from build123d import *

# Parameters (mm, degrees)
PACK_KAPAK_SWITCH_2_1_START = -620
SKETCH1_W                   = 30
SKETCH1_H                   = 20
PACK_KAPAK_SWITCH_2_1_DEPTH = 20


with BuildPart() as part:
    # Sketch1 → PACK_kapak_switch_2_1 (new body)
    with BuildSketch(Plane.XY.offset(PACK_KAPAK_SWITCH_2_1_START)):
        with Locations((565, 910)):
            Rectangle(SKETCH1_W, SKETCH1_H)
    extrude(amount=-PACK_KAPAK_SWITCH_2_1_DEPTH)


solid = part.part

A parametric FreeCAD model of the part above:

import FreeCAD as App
import Part
import Sketcher


def add_polygon(sketch, points):
    """Adds a closed chain of lines whose ends are joined by coincident constraints."""
    first, n = sketch.GeometryCount, len(points)
    for a, b in zip(points, points[1:] + points[:1]):
        sketch.addGeometry(Part.LineSegment(App.Vector(*a, 0), App.Vector(*b, 0)), False)
    for i in range(n):
        sketch.addConstraint(Sketcher.Constraint("Coincident", first + i, 2, first + (i + 1) % n, 1))

doc = App.newDocument("Part")
body = doc.addObject("PartDesign::Body", "Body")

# Sketch on XY plane
sketch1 = body.newObject("Sketcher::SketchObject", "Sketch")
sketch1.AttachmentSupport = (doc.getObject("XY_Plane"), [""])
sketch1.MapMode = "FlatFace"
sketch1.AttachmentOffset = App.Placement(App.Vector(0, 0, -620), App.Rotation())
add_polygon(sketch1, [(550, 920), (550, 900), (580, 900), (580, 920)])  # lines 0-3
sketch1.addConstraint(Sketcher.Constraint("Vertical", 0))
sketch1.addConstraint(Sketcher.Constraint("Horizontal", 1))
sketch1.addConstraint(Sketcher.Constraint("Vertical", 2))
sketch1.addConstraint(Sketcher.Constraint("Horizontal", 3))
sketch1.addConstraint(Sketcher.Constraint("DistanceX", 1, 1, 1, 2, 30.0))
sketch1.addConstraint(Sketcher.Constraint("DistanceY", 0, 2, 0, 1, 20.0))
sketch1.addConstraint(Sketcher.Constraint("DistanceX", -1, 1, 0, 2, 550.0))
sketch1.addConstraint(Sketcher.Constraint("DistanceY", -1, 1, 0, 2, 900.0))
pad1 = body.newObject("PartDesign::Pad", "Pad")
pad1.Profile = sketch1
pad1.Length = 20
pad1.Reversed = True

doc.recompute()
